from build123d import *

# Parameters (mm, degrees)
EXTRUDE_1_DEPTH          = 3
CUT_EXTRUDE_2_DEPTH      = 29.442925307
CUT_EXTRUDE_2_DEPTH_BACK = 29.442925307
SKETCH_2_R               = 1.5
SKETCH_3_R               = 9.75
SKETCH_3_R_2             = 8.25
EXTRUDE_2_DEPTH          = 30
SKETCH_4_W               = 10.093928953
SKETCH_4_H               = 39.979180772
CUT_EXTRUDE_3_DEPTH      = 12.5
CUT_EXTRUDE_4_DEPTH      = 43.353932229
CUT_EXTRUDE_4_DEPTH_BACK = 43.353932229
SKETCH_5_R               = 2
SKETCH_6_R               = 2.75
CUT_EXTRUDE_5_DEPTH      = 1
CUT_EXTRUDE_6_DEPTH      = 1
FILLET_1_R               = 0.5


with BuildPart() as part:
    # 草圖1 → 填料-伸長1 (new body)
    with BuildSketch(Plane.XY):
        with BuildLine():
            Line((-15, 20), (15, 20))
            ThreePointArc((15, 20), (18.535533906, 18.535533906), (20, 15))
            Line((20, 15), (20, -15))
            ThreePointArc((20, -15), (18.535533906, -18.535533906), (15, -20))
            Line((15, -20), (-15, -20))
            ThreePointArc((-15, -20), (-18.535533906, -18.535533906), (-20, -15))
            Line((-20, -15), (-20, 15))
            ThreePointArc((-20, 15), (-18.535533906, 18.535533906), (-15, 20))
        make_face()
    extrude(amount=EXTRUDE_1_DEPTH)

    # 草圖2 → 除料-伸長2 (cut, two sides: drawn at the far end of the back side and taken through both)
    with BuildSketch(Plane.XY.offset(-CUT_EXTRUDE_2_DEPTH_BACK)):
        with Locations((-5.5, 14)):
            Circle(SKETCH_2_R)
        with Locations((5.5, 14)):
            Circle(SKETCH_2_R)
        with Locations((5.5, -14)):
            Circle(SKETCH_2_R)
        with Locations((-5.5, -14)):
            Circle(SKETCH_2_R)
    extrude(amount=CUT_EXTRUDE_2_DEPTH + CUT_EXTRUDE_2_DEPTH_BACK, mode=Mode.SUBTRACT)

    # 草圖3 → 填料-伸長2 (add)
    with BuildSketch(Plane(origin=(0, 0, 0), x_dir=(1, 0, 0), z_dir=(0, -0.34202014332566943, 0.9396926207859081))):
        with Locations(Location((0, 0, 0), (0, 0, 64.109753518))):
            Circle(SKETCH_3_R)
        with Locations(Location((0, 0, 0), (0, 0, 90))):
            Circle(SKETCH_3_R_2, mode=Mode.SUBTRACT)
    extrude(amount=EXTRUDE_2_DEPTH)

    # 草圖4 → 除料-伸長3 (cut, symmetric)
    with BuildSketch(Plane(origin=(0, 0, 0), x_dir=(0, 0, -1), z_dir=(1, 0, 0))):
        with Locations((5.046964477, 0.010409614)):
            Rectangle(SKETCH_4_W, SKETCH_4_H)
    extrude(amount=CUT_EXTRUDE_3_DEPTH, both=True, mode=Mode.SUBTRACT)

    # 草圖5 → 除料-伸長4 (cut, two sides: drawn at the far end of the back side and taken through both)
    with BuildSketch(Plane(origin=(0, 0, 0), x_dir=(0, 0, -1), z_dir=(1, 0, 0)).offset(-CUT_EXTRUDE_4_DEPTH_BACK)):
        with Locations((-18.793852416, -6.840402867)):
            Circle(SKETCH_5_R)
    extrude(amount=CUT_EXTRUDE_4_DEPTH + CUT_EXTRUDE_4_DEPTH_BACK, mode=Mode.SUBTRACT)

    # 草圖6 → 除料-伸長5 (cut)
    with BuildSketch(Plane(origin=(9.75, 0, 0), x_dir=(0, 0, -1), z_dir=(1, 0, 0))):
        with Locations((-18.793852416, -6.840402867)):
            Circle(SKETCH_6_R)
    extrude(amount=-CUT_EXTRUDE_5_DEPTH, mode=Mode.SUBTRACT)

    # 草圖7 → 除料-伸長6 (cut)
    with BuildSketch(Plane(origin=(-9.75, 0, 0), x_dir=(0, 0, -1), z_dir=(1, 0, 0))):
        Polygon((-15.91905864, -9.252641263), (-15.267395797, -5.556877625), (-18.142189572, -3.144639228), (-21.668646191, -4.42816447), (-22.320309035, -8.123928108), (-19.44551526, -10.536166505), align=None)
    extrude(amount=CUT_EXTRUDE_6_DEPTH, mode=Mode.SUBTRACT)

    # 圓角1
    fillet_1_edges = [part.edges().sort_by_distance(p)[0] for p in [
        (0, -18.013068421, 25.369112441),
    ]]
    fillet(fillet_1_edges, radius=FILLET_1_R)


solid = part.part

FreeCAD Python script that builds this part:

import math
import FreeCAD as App
import Part
import Sketcher
from FreeCAD import Vector
Q = App.Units.Quantity


def edges_at(feature, points):
    """Names of the edges that pass closest to the given points."""
    edges = feature.Shape.Edges
    near = lambda p: min(range(len(edges)), key=lambda i: edges[i].distToShape(Part.Vertex(*p))[0])
    return sorted({f"Edge{near(p) + 1}" for p in points})


def add_polygon(sketch, points):
    """Adds a closed chain of lines whose ends are joined by coincident constraints."""
    first, n = sketch.GeometryCount, len(points)
    for a, b in zip(points, points[1:] + points[:1]):
        sketch.addGeometry(Part.LineSegment(App.Vector(*a, 0), App.Vector(*b, 0)), False)
    for i in range(n):
        sketch.addConstraint(Sketcher.Constraint("Coincident", first + i, 2, first + (i + 1) % n, 1))

doc = App.newDocument("Part")
params = doc.addObject("Spreadsheet::Sheet", "Params")
for row, (alias, value) in enumerate([
    ("sketch1_radius", "5 mm"),
    ("sketch1_width", "30 mm"),
    ("pad1_length", "3 mm"),
    ("sketch2_diameter", "3 mm"),
    ("sketch3_diameter", "19.5 mm"),
    ("sketch3_diameter2", "16.5 mm"),
    ("pad2_length", "30 mm"),
    ("pocket2_length", "25 mm"),
    ("sketch5_diameter", "4 mm"),
    ("sketch6_diameter", "5.5 mm"),
    ("pocket4_length", "1 mm"),
    ("pocket5_length", "1 mm"),
    ("fillet_radius", "0.5 mm"),
], start=1):
    params.set(f"A{row}", alias)
    params.set(f"B{row}", "=" + value)
    params.setAlias(f"B{row}", alias)

body = doc.addObject("PartDesign::Body", "Body")

# Sketch on XY plane
sketch1 = body.newObject("Sketcher::SketchObject", "Sketch")
sketch1.AttachmentSupport = (doc.getObject("XY_Plane"), [""])
sketch1.MapMode = "FlatFace"
sketch1.addGeometry(Part.LineSegment(Vector(15, 20, 0), Vector(-15, 20, 0)), False)
sketch1.addGeometry(Part.ArcOfCircle(Part.Circle(Vector(-15, 15, 0), Vector(0, 0, 1), 5), math.radians(90), math.radians(180)), False)
sketch1.addGeometry(Part.LineSegment(Vector(-20, 15, 0), Vector(-20, -15, 0)), False)
sketch1.addGeometry(Part.ArcOfCircle(Part.Circle(Vector(-15, -15, 0), Vector(0, 0, 1), 5), math.radians(180), math.radians(270)), False)
sketch1.addGeometry(Part.LineSegment(Vector(-15, -20, 0), Vector(15, -20, 0)), False)
sketch1.addGeometry(Part.ArcOfCircle(Part.Circle(Vector(15, -15, 0), Vector(0, 0, 1), 5), math.radians(-90), math.radians(0)), False)
sketch1.addGeometry(Part.LineSegment(Vector(20, -15, 0), Vector(20, 15, 0)), False)
sketch1.addGeometry(Part.ArcOfCircle(Part.Circle(Vector(15, 15, 0), Vector(0, 0, 1), 5), math.radians(0), math.radians(90)), False)
sketch1.addConstraint(Sketcher.Constraint("Tangent", 0, 2, 1, 1))
sketch1.addConstraint(Sketcher.Constraint("Tangent", 1, 2, 2, 1))
sketch1.addConstraint(Sketcher.Constraint("Tangent", 2, 2, 3, 1))
sketch1.addConstraint(Sketcher.Constraint("Tangent", 3, 2, 4, 1))
sketch1.addConstraint(Sketcher.Constraint("Tangent", 4, 2, 5, 1))
sketch1.addConstraint(Sketcher.Constraint("Tangent", 5, 2, 6, 1))
sketch1.addConstraint(Sketcher.Constraint("Tangent", 6, 2, 7, 1))
sketch1.addConstraint(Sketcher.Constraint("Tangent", 7, 2, 0, 1))
sketch1.addConstraint(Sketcher.Constraint("Horizontal", 0))
sketch1.addConstraint(Sketcher.Constraint("Vertical", 2))
sketch1.addConstraint(Sketcher.Constraint("Horizontal", 4))
sketch1.addConstraint(Sketcher.Constraint("Vertical", 6))
sketch1.addConstraint(Sketcher.Constraint("Equal", 1, 3))
sketch1.addConstraint(Sketcher.Constraint("Equal", 3, 5))
sketch1.addConstraint(Sketcher.Constraint("Equal", 5, 7))
sketch1.addConstraint(Sketcher.Constraint("Symmetric", 1, 3, 5, 3, -1, 1))
sketch1.addConstraint(Sketcher.Constraint("Equal", 4, 2))
sketch1.addConstraint(Sketcher.Constraint("Radius", 1, Q("5 mm")))
sketch1.addConstraint(Sketcher.Constraint("DistanceX", 0, 2, 0, 1, Q("30 mm")))
sketch1.setExpression("Constraints[17]", "Params.sketch1_radius")
sketch1.setExpression("Constraints[18]", "Params.sketch1_width")
pad1 = body.newObject("PartDesign::Pad", "Pad")
pad1.Profile = sketch1
pad1.setExpression("Length", "Params.pad1_length")

# Sketch on XY plane
sketch2 = body.newObject("Sketcher::SketchObject", "Sketch001")
sketch2.AttachmentSupport = (doc.getObject("XY_Plane"), [""])
sketch2.MapMode = "FlatFace"
sketch2.addGeometry(Part.Circle(Vector(-5.5, 14, 0), Vector(0, 0, 1), 1.5), False)
sketch2.addGeometry(Part.Circle(Vector(5.5, 14, 0), Vector(0, 0, 1), 1.5), False)
sketch2.addGeometry(Part.Circle(Vector(5.5, -14, 0), Vector(0, 0, 1), 1.5), False)
sketch2.addGeometry(Part.Circle(Vector(-5.5, -14, 0), Vector(0, 0, 1), 1.5), False)
sketch2.addConstraint(Sketcher.Constraint("Equal", 0, 1))
sketch2.addConstraint(Sketcher.Constraint("Equal", 1, 2))
sketch2.addConstraint(Sketcher.Constraint("Equal", 2, 3))
sketch2.addConstraint(Sketcher.Constraint("Symmetric", 0, 3, 2, 3, -1, 1))
sketch2.addConstraint(Sketcher.Constraint("Symmetric", 1, 3, 3, 3, -1, 1))
sketch2.addConstraint(Sketcher.Constraint("Symmetric", 0, 3, 1, 3, -2))
sketch2.addConstraint(Sketcher.Constraint("Diameter", 0, Q("3 mm")))
sketch2.addConstraint(Sketcher.Constraint("DistanceY", -1, 1, 0, 3, Q("14 mm")))
sketch2.addConstraint(Sketcher.Constraint("DistanceX", 0, 3, 1, 3, Q("11 mm")))
sketch2.setExpression("Constraints[6]", "Params.sketch2_diameter")
pocket1 = body.newObject("PartDesign::Pocket", "Pocket")
pocket1.Profile = sketch2
pocket1.Type = "ThroughAll"
pocket1.Midplane = True

# Sketch on an angled plane
sketch3 = body.newObject("Sketcher::SketchObject", "Sketch002")
sketch3.Placement = App.Placement(Vector(0, 0, 0), App.Rotation(Vector(1, 0, 0), Vector(0, 0.939692621, 0.342020143), Vector(0, -0.342020143, 0.939692621), "ZXY"))
sketch3.addGeometry(Part.Circle(Vector(0, 0, 0), Vector(0, 0, 1), 10), False)
sketch3.addGeometry(Part.Circle(Vector(0, 0, 0), Vector(0, 0, 1), 8), False)
sketch3.addConstraint(Sketcher.Constraint("Coincident", 0, 3, -1, 1))
sketch3.addConstraint(Sketcher.Constraint("Coincident", 1, 3, -1, 1))
sketch3.addConstraint(Sketcher.Constraint("Diameter", 0, Q("19.5 mm")))
sketch3.addConstraint(Sketcher.Constraint("Diameter", 1, Q("16.5 mm")))
sketch3.setExpression("Constraints[2]", "Params.sketch3_diameter")
sketch3.setExpression("Constraints[3]", "Params.sketch3_diameter2")
pad2 = body.newObject("PartDesign::Pad", "Pad001")
pad2.Profile = sketch3
pad2.setExpression("Length", "Params.pad2_length")

# Sketch on YZ plane
sketch4 = body.newObject("Sketcher::SketchObject", "Sketch003")
sketch4.AttachmentSupport = (doc.getObject("YZ_Plane"), [""])
sketch4.MapMode = "FlatFace"
add_polygon(sketch4, [(20, 0), (-20, 0), (-20, -10), (20, -10)])  # lines 0-3
sketch4.addConstraint(Sketcher.Constraint("Horizontal", 0))
sketch4.addConstraint(Sketcher.Constraint("Vertical", 1))
sketch4.addConstraint(Sketcher.Constraint("Horizontal", 2))
sketch4.addConstraint(Sketcher.Constraint("Vertical", 3))
sketch4.addConstraint(Sketcher.Constraint("PointOnObject", 0, 2, -1))
sketch4.addConstraint(Sketcher.Constraint("DistanceX", -1, 1, 2, 2, Q("20 mm")))
sketch4.addConstraint(Sketcher.Constraint("DistanceX", 0, 2, 0, 1, Q("39.979181 mm")))
sketch4.addConstraint(Sketcher.Constraint("DistanceY", 1, 2, 1, 1, Q("10.093929 mm")))
pocket2 = body.newObject("PartDesign::Pocket", "Pocket001")
pocket2.Profile = sketch4
pocket2.setExpression("Length", "Params.pocket2_length")
pocket2.Midplane = True

# Sketch on YZ plane
sketch5 = body.newObject("Sketcher::SketchObject", "Sketch004")
sketch5.AttachmentSupport = (doc.getObject("YZ_Plane"), [""])
sketch5.MapMode = "FlatFace"
sketch5.addGeometry(Part.Circle(Vector(-6.8, 18.8, 0), Vector(0, 0, 1), 2), False)
sketch5.addConstraint(Sketcher.Constraint("Diameter", 0, Q("4 mm")))
sketch5.addConstraint(Sketcher.Constraint("DistanceX", 0, 3, -1, 1, Q("6.840403 mm")))
sketch5.addConstraint(Sketcher.Constraint("DistanceY", -1, 1, 0, 3, Q("18.793852 mm")))
sketch5.setExpression("Constraints[0]", "Params.sketch5_diameter")
pocket3 = body.newObject("PartDesign::Pocket", "Pocket002")
pocket3.Profile = sketch5
pocket3.Type = "ThroughAll"
pocket3.Midplane = True

# Sketch on YZ plane
sketch6 = body.newObject("Sketcher::SketchObject", "Sketch005")
sketch6.AttachmentSupport = (doc.getObject("YZ_Plane"), [""])
sketch6.MapMode = "FlatFace"
sketch6.AttachmentOffset = App.Placement(Vector(0, 0, 9.75), App.Rotation())
sketch6.addGeometry(Part.Circle(Vector(-6.8, 18.8, 0), Vector(0, 0, 1), 2.8), False)
sketch6.addConstraint(Sketcher.Constraint("Diameter", 0, Q("5.5 mm")))
sketch6.addConstraint(Sketcher.Constraint("DistanceX", 0, 3, -1, 1, Q("6.840403 mm")))
sketch6.addConstraint(Sketcher.Constraint("DistanceY", -1, 1, 0, 3, Q("18.793852 mm")))
sketch6.setExpression("Constraints[0]", "Params.sketch6_diameter")
pocket4 = body.newObject("PartDesign::Pocket", "Pocket003")
pocket4.Profile = sketch6
pocket4.setExpression("Length", "Params.pocket4_length")

# Sketch on YZ plane
sketch7 = body.newObject("Sketcher::SketchObject", "Sketch006")
sketch7.AttachmentSupport = (doc.getObject("YZ_Plane"), [""])
sketch7.MapMode = "FlatFace"
sketch7.AttachmentOffset = App.Placement(Vector(0, 0, -9.75), App.Rotation())
add_polygon(sketch7, [(-9.3, 15.9), (-5.6, 15.3), (-3.1, 18.1), (-4.4, 21.7), (-8.1, 22.3), (-10.5, 19.4)])  # lines 0-5
sketch7.addConstraint(Sketcher.Constraint("Parallel", 0, 3))
sketch7.addConstraint(Sketcher.Constraint("Parallel", 1, 4))
sketch7.addConstraint(Sketcher.Constraint("Parallel", 2, 5))
sketch7.addConstraint(Sketcher.Constraint("Equal", 0, 1))
sketch7.addConstraint(Sketcher.Constraint("Equal", 1, 2))
sketch7.addConstraint(Sketcher.Constraint("Equal", 2, 3))
sketch7.addConstraint(Sketcher.Constraint("Angle", 0, Q("-10 deg")))
sketch7.addConstraint(Sketcher.Constraint("Angle", 1, Q("50 deg")))
sketch7.addConstraint(Sketcher.Constraint("Angle", 2, Q("110 deg")))
sketch7.addConstraint(Sketcher.Constraint("DistanceX", 1, 2, -1, 1, Q("3.144639 mm")))
sketch7.addConstraint(Sketcher.Constraint("DistanceY", -1, 1, 1, 2, Q("18.14219 mm")))
sketch7.addConstraint(Sketcher.Constraint("DistanceX", 3, 2, -1, 1, Q("8.123928 mm")))
pocket5 = body.newObject("PartDesign::Pocket", "Pocket004")
pocket5.Profile = sketch7
pocket5.setExpression("Length", "Params.pocket5_length")
pocket5.Reversed = True
doc.recompute()

fillet = body.newObject("PartDesign::Fillet", "Fillet")
fillet.Base = (pocket5, edges_at(pocket5, [(0, -18.013, 25.369)]))
fillet.setExpression("Radius", "Params.fillet_radius")

doc.recompute()
